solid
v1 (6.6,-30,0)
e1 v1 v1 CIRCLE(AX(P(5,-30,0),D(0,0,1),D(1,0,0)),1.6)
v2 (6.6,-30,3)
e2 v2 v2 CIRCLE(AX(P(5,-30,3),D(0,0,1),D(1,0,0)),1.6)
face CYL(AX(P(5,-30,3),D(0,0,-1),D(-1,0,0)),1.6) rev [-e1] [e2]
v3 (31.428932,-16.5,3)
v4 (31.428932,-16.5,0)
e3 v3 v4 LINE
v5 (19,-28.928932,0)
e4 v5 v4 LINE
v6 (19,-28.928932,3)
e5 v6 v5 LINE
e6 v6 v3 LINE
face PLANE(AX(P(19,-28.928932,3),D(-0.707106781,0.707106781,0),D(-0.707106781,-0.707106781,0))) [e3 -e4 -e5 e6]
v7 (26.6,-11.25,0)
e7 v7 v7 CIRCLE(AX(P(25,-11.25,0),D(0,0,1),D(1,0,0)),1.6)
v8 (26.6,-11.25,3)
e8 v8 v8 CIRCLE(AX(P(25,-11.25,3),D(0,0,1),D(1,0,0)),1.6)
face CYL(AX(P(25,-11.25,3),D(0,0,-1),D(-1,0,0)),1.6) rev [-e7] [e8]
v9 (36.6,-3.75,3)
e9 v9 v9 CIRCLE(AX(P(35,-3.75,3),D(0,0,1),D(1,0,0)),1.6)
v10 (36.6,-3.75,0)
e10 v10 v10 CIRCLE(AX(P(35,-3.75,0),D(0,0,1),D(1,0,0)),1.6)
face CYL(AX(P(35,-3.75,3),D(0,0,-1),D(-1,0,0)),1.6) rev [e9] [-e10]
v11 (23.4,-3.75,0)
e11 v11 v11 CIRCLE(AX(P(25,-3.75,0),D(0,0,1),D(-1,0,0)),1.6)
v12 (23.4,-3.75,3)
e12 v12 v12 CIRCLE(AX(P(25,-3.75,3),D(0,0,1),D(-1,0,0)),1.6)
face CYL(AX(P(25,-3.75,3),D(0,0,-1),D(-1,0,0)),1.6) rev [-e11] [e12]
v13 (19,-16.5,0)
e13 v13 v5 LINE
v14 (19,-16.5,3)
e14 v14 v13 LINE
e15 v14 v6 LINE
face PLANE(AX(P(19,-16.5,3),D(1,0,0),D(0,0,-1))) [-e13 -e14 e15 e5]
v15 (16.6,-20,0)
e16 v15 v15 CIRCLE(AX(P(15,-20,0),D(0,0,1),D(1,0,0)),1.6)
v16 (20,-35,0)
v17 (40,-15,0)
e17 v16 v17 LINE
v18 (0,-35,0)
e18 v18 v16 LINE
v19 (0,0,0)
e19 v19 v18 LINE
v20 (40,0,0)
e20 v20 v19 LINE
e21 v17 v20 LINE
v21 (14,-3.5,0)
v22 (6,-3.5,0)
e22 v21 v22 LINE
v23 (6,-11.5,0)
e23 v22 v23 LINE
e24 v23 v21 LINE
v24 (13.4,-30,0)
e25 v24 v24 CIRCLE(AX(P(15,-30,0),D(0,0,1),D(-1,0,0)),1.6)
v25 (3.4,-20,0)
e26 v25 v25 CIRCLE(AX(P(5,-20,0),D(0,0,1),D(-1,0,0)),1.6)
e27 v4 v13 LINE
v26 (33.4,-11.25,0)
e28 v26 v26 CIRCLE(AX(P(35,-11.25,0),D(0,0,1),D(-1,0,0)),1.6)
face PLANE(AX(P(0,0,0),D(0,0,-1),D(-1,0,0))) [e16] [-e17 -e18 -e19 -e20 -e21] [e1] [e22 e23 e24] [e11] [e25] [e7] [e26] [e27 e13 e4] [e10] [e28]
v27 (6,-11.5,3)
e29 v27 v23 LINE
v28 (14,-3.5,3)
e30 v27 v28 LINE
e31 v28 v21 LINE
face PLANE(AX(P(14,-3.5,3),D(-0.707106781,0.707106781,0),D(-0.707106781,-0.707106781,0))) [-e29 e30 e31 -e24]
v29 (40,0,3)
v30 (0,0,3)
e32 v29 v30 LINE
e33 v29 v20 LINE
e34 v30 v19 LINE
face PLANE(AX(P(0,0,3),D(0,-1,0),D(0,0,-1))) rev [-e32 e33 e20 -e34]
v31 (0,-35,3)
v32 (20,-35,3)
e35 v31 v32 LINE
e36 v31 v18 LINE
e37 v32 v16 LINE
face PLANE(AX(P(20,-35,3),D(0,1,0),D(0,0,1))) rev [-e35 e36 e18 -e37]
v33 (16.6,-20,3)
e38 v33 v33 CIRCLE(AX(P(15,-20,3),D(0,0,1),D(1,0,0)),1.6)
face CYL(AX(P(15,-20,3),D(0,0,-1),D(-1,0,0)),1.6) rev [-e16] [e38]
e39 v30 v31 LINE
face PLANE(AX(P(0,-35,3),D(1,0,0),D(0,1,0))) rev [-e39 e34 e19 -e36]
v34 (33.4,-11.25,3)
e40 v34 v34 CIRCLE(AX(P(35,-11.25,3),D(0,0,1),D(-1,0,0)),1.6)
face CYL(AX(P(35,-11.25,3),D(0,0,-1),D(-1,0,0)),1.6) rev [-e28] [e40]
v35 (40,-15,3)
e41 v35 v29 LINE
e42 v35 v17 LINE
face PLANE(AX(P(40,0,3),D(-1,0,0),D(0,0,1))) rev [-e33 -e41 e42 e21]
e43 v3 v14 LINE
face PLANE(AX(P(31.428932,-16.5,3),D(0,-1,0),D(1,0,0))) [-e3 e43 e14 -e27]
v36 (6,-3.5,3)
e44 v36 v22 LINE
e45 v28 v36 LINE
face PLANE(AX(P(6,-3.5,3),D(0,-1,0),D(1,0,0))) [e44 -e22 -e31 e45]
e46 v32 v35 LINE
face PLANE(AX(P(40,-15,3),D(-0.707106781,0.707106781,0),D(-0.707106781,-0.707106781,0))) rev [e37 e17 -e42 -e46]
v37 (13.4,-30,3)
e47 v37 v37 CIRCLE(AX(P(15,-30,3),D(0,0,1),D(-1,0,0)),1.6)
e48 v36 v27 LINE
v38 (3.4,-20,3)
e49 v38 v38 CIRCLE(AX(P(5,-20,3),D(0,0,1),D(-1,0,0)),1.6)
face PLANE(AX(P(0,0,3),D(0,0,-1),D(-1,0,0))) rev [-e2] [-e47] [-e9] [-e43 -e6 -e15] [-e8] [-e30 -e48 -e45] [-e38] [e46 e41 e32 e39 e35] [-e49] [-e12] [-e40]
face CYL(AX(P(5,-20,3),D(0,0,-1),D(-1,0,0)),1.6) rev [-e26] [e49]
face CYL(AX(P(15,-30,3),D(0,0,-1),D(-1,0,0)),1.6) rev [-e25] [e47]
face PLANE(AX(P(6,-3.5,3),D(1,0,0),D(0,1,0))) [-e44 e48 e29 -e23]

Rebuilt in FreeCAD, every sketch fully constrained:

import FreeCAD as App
import Part
import Sketcher
Q = App.Units.Quantity

doc = App.newDocument("Part")
body = doc.addObject("PartDesign::Body", "Body")

# Sketch on XY plane
sketch1 = body.newObject("Sketcher::SketchObject", "Sketch")
sketch1.AttachmentSupport = (doc.getObject("XY_Plane"), [""])
sketch1.MapMode = "FlatFace"
sketch1.addGeometry([
    Part.LineSegment(App.Vector(40, 0, 0), App.Vector(0, 0, 0)),  # 0
    Part.LineSegment(App.Vector(0, 0, 0), App.Vector(0, -35, 0)),  # 1
    Part.LineSegment(App.Vector(0, -35, 0), App.Vector(20, -35, 0)),  # 2
    Part.LineSegment(App.Vector(20, -35, 0), App.Vector(40, -15, 0)),  # 3
    Part.LineSegment(App.Vector(40, -15, 0), App.Vector(40, 0, 0)),  # 4
    Part.LineSegment(App.Vector(19, -16.5, 0), App.Vector(31.4, -16.5, 0)),  # 5
    Part.LineSegment(App.Vector(31.4, -16.5, 0), App.Vector(19, -28.9, 0)),  # 6
    Part.LineSegment(App.Vector(19, -28.9, 0), App.Vector(19, -16.5, 0)),  # 7
    Part.Circle(App.Vector(15, -30, 0), App.Vector(0, 0, 1), 1.6),  # 8
    Part.Circle(App.Vector(5, -30, 0), App.Vector(0, 0, 1), 1.6),  # 9
    Part.Circle(App.Vector(15, -20, 0), App.Vector(0, 0, 1), 1.6),  # 10
    Part.Circle(App.Vector(5, -20, 0), App.Vector(0, 0, 1), 1.6),  # 11
    Part.Circle(App.Vector(35, -11.2, 0), App.Vector(0, 0, 1), 1.6),  # 12
    Part.Circle(App.Vector(25, -11.2, 0), App.Vector(0, 0, 1), 1.6),  # 13
    Part.Circle(App.Vector(35, -3.8, 0), App.Vector(0, 0, 1), 1.6),  # 14
    Part.Circle(App.Vector(25, -3.8, 0), App.Vector(0, 0, 1), 1.6),  # 15
    Part.LineSegment(App.Vector(6, -3.5, 0), App.Vector(14, -3.5, 0)),  # 16
    Part.LineSegment(App.Vector(14, -3.5, 0), App.Vector(6, -11.5, 0)),  # 17
    Part.LineSegment(App.Vector(6, -11.5, 0), App.Vector(6, -3.5, 0)),  # 18
], False)
sketch1.addConstraint([
    Sketcher.Constraint("Coincident", 0, 2, 1, 1),
    Sketcher.Constraint("Coincident", 1, 2, 2, 1),
    Sketcher.Constraint("Coincident", 2, 2, 3, 1),
    Sketcher.Constraint("Coincident", 3, 2, 4, 1),
    Sketcher.Constraint("Coincident", 4, 2, 0, 1),
    Sketcher.Constraint("Coincident", 5, 2, 6, 1),
    Sketcher.Constraint("Coincident", 6, 2, 7, 1),
    Sketcher.Constraint("Coincident", 7, 2, 5, 1),
    Sketcher.Constraint("Coincident", 16, 2, 17, 1),
    Sketcher.Constraint("Coincident", 17, 2, 18, 1),
    Sketcher.Constraint("Coincident", 18, 2, 16, 1),
    Sketcher.Constraint("Horizontal", 0),
    Sketcher.Constraint("Vertical", 1),
    Sketcher.Constraint("Horizontal", 2),
    Sketcher.Constraint("Vertical", 4),
    Sketcher.Constraint("Horizontal", 5),
    Sketcher.Constraint("Vertical", 7),
    Sketcher.Constraint("Horizontal", 16),
    Sketcher.Constraint("Vertical", 18),
    Sketcher.Constraint("Coincident", 0, 2, -1, 1),
    Sketcher.Constraint("Equal", 8, 9),
    Sketcher.Constraint("Equal", 9, 10),
    Sketcher.Constraint("Equal", 10, 11),
    Sketcher.Constraint("Equal", 11, 12),
    Sketcher.Constraint("Equal", 12, 13),
    Sketcher.Constraint("Equal", 13, 14),
    Sketcher.Constraint("Equal", 14, 15),
    Sketcher.Constraint("Parallel", 3, 6),
    Sketcher.Constraint("Parallel", 6, 17),
    Sketcher.Constraint("Horizontal", 8, 3, 9, 3),
    Sketcher.Constraint("Horizontal", 10, 3, 11, 3),
    Sketcher.Constraint("Horizontal", 12, 3, 13, 3),
    Sketcher.Constraint("Horizontal", 14, 3, 15, 3),
    Sketcher.Constraint("Vertical", 8, 3, 10, 3),
    Sketcher.Constraint("Vertical", 9, 3, 11, 3),
    Sketcher.Constraint("Vertical", 12, 3, 14, 3),
    Sketcher.Constraint("Vertical", 13, 3, 15, 3),
    Sketcher.Constraint("Equal", 5, 7),
    Sketcher.Constraint("Diameter", 8, Q("3.2 mm")),
    Sketcher.Constraint("DistanceX", 0, 2, 0, 1, Q("40 mm")),
    Sketcher.Constraint("DistanceX", 2, 1, 2, 2, Q("20 mm")),
    Sketcher.Constraint("DistanceX", 16, 1, 16, 2, Q("8 mm")),
    Sketcher.Constraint("DistanceY", 1, 2, 1, 1, Q("35 mm")),
    Sketcher.Constraint("DistanceX", -1, 1, 8, 3, Q("15 mm")),
    Sketcher.Constraint("DistanceY", 8, 3, -1, 1, Q("30 mm")),
    Sketcher.Constraint("DistanceX", -1, 1, 9, 3, Q("5 mm")),
    Sketcher.Constraint("DistanceY", 10, 3, -1, 1, Q("20 mm")),
    Sketcher.Constraint("DistanceX", -1, 1, 12, 3, Q("35 mm")),
    Sketcher.Constraint("DistanceX", -1, 1, 13, 3, Q("25 mm")),
    Sketcher.Constraint("DistanceX", -1, 1, 6, 2, Q("19 mm")),
    Sketcher.Constraint("DistanceX", -1, 1, 16, 2, Q("14 mm")),
    Sketcher.Constraint("DistanceY", 7, 2, 16, 2, Q("13 mm")),
    Sketcher.Constraint("DistanceY", 5, 2, -1, 1, Q("16.5 mm")),
    Sketcher.Constraint("DistanceY", 12, 3, 14, 3, Q("7.5 mm")),
    Sketcher.Constraint("DistanceY", 12, 3, -1, 1, Q("11.25 mm")),
    Sketcher.Constraint("DistanceX", 5, 1, 5, 2, Q("12.428932 mm")),
])
pad1 = body.newObject("PartDesign::Pad", "Pad")
pad1.Profile = sketch1
pad1.Length = 3

doc.recompute()
